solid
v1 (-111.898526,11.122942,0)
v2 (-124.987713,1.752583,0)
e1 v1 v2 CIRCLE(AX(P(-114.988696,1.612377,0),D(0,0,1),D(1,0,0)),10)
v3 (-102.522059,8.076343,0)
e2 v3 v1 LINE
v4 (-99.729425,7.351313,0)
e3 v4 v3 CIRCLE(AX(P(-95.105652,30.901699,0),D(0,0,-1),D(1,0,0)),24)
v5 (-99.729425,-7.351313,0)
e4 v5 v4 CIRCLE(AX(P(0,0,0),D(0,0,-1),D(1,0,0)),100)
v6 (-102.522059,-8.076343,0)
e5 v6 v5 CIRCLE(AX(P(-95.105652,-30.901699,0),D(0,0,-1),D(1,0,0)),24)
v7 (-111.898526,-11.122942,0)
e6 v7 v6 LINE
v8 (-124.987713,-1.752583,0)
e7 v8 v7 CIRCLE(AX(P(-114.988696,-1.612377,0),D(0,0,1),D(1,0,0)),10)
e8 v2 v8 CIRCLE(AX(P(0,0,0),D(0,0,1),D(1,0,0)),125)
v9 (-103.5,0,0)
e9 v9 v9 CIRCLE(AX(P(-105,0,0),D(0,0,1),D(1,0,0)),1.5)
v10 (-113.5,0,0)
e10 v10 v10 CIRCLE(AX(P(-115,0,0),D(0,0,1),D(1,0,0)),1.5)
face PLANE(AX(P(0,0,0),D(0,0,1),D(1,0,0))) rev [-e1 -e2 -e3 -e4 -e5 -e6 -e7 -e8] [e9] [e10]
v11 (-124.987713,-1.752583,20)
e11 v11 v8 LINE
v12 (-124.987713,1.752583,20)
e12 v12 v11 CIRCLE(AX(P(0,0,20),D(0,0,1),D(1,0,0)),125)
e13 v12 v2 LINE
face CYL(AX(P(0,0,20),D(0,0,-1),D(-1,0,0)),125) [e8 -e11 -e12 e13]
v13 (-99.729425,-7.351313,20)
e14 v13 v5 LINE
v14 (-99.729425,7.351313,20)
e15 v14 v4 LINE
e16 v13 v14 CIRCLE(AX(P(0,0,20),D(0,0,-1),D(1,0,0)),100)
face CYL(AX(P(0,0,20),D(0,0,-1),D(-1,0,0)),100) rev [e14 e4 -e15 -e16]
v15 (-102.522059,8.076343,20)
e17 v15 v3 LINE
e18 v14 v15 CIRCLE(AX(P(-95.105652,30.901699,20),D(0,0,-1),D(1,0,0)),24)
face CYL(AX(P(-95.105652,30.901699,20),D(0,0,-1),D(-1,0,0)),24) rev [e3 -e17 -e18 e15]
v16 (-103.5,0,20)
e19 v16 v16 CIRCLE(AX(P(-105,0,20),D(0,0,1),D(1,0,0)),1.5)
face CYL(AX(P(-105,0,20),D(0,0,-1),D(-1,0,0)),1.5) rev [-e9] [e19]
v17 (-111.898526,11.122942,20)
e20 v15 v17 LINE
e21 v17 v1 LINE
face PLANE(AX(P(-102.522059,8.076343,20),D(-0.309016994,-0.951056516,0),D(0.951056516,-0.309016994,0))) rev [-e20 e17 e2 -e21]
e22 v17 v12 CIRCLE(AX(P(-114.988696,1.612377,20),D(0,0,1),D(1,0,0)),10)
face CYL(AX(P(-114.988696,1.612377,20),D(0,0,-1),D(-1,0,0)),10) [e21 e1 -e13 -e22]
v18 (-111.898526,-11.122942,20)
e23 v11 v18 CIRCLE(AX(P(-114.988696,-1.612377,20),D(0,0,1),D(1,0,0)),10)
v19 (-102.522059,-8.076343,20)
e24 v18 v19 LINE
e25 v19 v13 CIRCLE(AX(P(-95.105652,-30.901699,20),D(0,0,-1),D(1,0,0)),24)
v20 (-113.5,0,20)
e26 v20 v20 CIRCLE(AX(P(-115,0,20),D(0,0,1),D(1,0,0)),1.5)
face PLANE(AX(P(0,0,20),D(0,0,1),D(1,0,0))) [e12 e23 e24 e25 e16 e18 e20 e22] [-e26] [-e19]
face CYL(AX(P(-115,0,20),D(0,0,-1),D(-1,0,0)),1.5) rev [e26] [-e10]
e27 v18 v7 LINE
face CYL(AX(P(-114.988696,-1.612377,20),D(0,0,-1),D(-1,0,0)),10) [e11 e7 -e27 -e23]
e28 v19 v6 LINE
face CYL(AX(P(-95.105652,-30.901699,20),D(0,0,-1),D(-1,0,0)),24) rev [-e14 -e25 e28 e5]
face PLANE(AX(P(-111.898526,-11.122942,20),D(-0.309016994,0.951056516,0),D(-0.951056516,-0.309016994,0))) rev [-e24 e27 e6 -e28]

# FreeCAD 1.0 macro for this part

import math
import FreeCAD as App
import Part
import Sketcher

V = App.Vector
Q = App.Units.Quantity

doc = App.newDocument("Part")
params = doc.addObject("Spreadsheet::Sheet", "Params")
for row, (alias, value) in enumerate([
    ("sketch1_diameter", "3 mm"),
    ("sketch1_radius", "10 mm"),
    ("sketch1_radius2", "125.000002 mm"),
    ("sketch1_radius3", "24 mm"),
    ("sketch1_radius4", "100 mm"),
    ("pad1_length", "20 mm"),
], start=1):
    params.set(f"A{row}", alias)
    params.set(f"B{row}", "=" + value)
    params.setAlias(f"B{row}", alias)

body = doc.addObject("PartDesign::Body", "Body")

# Sketch on XY plane
sketch1 = body.newObject("Sketcher::SketchObject", "Sketch")
sketch1.AttachmentSupport = (doc.getObject("XY_Plane"), [""])
sketch1.MapMode = "FlatFace"
sketch1.addGeometry(Part.LineSegment(V(-102.5, 8.1, 0), V(-111.9, 11.1, 0)), False)
sketch1.addGeometry(Part.ArcOfCircle(Part.Circle(V(-115, 1.6, 0), V(0, 0, 1), 10), math.radians(72), math.radians(179)), False)
sketch1.addGeometry(Part.ArcOfCircle(Part.Circle(V(0, 0, 0), V(0, 0, 1), 125), math.radians(179.2), math.radians(180.8)), False)
sketch1.addGeometry(Part.ArcOfCircle(Part.Circle(V(-115, -1.6, 0), V(0, 0, 1), 10), math.radians(-179), math.radians(-72)), False)
sketch1.addGeometry(Part.LineSegment(V(-111.9, -11.1, 0), V(-102.5, -8.1, 0)), False)
sketch1.addGeometry(Part.ArcOfCircle(Part.Circle(V(-95.1, -30.9, 0), V(0, 0, 1), 24), math.radians(101.11), math.radians(108)), False)
sketch1.addGeometry(Part.ArcOfCircle(Part.Circle(V(0, 0, 0), V(0, 0, 1), 100), math.radians(175.78), math.radians(184.22)), False)
sketch1.addGeometry(Part.ArcOfCircle(Part.Circle(V(-95.1, 30.9, 0), V(0, 0, 1), 24), math.radians(-108), math.radians(-101.11)), False)
sketch1.addGeometry(Part.Circle(V(-115, 0, 0), V(0, 0, 1), 1.5), False)
sketch1.addGeometry(Part.Circle(V(-105, 0, 0), V(0, 0, 1), 1.5), False)
sketch1.addConstraint(Sketcher.Constraint("Tangent", 0, 2, 1, 1))
sketch1.addConstraint(Sketcher.Constraint("Tangent", 1, 2, 2, 1))
sketch1.addConstraint(Sketcher.Constraint("Tangent", 2, 2, 3, 1))
sketch1.addConstraint(Sketcher.Constraint("Tangent", 3, 2, 4, 1))
sketch1.addConstraint(Sketcher.Constraint("Tangent", 4, 2, 5, 2))
sketch1.addConstraint(Sketcher.Constraint("Coincident", 5, 1, 6, 2))
sketch1.addConstraint(Sketcher.Constraint("Coincident", 6, 1, 7, 2))
sketch1.addConstraint(Sketcher.Constraint("Tangent", 7, 1, 0, 1))
sketch1.addConstraint(Sketcher.Constraint("Coincident", 2, 3, -1, 1))
sketch1.addConstraint(Sketcher.Constraint("Coincident", 6, 3, -1, 1))
sketch1.addConstraint(Sketcher.Constraint("Equal", 1, 3))
sketch1.addConstraint(Sketcher.Constraint("Equal", 5, 7))
sketch1.addConstraint(Sketcher.Constraint("Equal", 8, 9))
sketch1.addConstraint(Sketcher.Constraint("Symmetric", 5, 3, 7, 3, -1))
sketch1.addConstraint(Sketcher.Constraint("PointOnObject", 8, 3, -1))
sketch1.addConstraint(Sketcher.Constraint("PointOnObject", 9, 3, -1))
sketch1.addConstraint(Sketcher.Constraint("Vertical", 1, 3, 3, 3))
sketch1.addConstraint(Sketcher.Constraint("Diameter", 8, 3.0))
sketch1.addConstraint(Sketcher.Constraint("Radius", 1, 10.0))
sketch1.addConstraint(Sketcher.Constraint("Radius", 2, 125.000002))
sketch1.addConstraint(Sketcher.Constraint("Radius", 5, 24.0))
sketch1.addConstraint(Sketcher.Constraint("Radius", 6, 100.0))
sketch1.addConstraint(Sketcher.Constraint("Angle", 0, Q("162 deg")))
sketch1.addConstraint(Sketcher.Constraint("DistanceX", 8, 3, -1, 1, 115.0))
sketch1.addConstraint(Sketcher.Constraint("DistanceX", 9, 3, -1, 1, 105.0))
sketch1.addConstraint(Sketcher.Constraint("Distance", 0, 9.859001))
sketch1.addConstraint(Sketcher.Constraint("DistanceY", 5, 3, -1, 1, 30.9017))
sketch1.setExpression("Constraints[17]", "Params.sketch1_diameter")
sketch1.setExpression("Constraints[18]", "Params.sketch1_radius")
sketch1.setExpression("Constraints[19]", "Params.sketch1_radius2")
sketch1.setExpression("Constraints[20]", "Params.sketch1_radius3")
sketch1.setExpression("Constraints[21]", "Params.sketch1_radius4")
pad1 = body.newObject("PartDesign::Pad", "Pad")
pad1.Profile = sketch1
pad1.setExpression("Length", "Params.pad1_length")

doc.recompute()
